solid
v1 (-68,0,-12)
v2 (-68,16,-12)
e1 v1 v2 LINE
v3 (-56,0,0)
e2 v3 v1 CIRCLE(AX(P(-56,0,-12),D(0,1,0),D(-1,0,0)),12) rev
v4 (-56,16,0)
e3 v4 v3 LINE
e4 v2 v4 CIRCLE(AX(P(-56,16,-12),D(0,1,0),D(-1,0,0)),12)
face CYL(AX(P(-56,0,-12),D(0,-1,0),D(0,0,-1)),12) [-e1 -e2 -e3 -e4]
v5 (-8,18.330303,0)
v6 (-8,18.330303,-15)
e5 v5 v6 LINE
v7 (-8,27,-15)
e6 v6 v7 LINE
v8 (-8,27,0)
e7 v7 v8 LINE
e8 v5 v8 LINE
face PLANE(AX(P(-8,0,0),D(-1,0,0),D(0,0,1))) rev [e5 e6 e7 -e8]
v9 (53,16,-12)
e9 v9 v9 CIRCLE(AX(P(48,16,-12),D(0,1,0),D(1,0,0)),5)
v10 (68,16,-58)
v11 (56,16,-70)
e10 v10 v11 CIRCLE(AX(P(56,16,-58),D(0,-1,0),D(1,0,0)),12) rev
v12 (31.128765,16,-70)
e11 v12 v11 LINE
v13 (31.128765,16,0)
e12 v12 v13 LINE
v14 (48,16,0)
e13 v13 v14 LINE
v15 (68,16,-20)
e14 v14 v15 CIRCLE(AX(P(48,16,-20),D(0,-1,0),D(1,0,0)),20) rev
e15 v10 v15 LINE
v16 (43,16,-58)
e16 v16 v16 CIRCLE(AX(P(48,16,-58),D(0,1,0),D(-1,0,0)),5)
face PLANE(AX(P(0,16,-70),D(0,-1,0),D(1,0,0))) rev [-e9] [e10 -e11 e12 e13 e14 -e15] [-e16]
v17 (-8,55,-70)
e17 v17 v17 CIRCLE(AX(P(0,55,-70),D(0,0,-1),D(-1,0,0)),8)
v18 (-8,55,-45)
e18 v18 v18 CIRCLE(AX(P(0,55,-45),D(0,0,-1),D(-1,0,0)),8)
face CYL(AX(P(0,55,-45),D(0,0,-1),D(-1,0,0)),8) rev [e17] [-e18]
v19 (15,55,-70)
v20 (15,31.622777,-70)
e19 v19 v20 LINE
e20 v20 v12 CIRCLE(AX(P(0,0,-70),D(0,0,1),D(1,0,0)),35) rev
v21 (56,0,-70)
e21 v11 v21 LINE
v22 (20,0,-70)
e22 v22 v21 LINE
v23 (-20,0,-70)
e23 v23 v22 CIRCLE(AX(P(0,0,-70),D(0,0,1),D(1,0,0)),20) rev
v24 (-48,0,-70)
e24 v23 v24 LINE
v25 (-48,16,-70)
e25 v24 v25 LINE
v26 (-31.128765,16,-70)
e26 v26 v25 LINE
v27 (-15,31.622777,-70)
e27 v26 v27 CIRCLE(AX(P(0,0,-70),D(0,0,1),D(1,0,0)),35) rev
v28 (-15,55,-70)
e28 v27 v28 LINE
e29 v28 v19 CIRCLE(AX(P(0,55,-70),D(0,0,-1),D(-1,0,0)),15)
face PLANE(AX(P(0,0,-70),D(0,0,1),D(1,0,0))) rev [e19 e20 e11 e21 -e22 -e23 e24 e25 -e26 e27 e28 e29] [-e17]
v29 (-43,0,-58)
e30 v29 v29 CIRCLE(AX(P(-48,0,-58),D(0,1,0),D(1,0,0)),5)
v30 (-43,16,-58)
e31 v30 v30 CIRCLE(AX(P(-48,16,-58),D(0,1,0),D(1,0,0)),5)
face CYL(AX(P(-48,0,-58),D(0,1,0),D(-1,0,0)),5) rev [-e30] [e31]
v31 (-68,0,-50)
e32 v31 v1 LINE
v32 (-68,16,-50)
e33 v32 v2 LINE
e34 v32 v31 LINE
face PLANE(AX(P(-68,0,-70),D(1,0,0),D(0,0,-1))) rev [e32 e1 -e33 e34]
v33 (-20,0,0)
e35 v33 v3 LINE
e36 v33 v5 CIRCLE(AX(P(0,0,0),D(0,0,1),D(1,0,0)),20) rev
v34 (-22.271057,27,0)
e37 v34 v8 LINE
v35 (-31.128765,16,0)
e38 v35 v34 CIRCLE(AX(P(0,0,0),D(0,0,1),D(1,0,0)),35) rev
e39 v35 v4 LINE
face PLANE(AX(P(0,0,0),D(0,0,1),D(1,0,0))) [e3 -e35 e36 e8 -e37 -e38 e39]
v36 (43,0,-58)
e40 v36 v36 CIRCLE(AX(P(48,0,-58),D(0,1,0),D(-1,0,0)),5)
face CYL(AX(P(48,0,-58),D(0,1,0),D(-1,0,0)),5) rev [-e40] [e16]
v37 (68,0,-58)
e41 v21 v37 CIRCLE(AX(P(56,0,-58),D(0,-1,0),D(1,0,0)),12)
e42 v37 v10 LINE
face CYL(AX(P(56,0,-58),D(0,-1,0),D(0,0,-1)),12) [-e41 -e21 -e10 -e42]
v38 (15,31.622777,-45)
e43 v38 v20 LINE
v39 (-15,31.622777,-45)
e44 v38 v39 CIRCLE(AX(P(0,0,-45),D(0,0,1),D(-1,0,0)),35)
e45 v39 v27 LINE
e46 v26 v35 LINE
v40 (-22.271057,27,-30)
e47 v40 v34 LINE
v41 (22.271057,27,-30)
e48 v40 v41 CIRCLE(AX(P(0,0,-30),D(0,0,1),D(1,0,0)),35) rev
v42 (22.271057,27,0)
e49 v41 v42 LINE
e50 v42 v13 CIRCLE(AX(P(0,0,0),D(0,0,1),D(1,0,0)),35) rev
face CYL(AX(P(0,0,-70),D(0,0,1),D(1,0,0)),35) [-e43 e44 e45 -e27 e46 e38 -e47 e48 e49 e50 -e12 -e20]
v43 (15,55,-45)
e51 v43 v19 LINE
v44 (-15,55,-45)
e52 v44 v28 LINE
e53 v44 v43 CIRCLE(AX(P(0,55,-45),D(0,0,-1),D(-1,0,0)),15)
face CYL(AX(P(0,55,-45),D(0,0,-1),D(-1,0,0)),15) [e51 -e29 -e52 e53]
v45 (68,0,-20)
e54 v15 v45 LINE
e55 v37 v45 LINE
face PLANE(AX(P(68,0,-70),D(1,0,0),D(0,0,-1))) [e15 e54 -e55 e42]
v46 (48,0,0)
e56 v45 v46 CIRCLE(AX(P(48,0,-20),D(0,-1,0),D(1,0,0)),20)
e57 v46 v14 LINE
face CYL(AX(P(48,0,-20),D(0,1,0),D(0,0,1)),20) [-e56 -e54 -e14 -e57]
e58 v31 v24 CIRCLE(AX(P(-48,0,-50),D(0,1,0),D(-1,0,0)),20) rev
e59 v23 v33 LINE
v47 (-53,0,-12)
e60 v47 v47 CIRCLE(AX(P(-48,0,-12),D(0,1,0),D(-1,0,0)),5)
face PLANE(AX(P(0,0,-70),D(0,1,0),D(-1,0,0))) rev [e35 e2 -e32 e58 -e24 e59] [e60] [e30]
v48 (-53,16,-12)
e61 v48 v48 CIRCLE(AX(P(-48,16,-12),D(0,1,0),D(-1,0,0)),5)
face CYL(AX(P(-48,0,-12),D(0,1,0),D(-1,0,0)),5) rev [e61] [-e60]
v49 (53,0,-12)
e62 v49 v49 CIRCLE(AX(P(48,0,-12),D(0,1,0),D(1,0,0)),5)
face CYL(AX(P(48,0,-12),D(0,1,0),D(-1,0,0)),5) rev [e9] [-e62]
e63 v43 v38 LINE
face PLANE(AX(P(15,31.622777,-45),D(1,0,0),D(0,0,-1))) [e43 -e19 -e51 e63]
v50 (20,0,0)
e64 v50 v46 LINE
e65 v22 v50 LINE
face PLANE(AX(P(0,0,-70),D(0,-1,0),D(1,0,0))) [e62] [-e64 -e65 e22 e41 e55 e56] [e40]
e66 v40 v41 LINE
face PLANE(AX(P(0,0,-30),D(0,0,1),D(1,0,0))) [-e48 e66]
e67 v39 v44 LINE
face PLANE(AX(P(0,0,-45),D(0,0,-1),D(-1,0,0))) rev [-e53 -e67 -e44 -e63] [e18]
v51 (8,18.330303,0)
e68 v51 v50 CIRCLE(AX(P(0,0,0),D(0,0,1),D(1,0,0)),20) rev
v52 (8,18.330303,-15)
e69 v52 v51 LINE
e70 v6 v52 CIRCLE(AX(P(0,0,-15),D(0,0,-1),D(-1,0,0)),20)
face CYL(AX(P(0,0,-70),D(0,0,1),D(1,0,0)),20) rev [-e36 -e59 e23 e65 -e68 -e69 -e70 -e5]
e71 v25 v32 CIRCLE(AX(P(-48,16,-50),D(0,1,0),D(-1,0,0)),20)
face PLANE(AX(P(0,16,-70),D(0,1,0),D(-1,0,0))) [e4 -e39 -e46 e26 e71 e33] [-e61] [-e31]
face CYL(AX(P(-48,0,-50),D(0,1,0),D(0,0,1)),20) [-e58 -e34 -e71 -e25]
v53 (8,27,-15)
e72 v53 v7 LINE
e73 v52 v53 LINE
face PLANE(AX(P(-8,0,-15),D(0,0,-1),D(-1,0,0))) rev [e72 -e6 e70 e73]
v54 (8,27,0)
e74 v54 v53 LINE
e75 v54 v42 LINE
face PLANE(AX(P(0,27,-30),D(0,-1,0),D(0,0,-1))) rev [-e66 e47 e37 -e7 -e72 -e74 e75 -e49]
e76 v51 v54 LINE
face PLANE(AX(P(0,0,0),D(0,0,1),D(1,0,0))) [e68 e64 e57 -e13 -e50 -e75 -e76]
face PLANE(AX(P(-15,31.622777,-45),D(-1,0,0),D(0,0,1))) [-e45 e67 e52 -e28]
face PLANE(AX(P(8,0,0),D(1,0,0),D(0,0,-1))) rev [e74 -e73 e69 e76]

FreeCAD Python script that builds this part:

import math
import FreeCAD as App
import Part
import Sketcher


def edges_at(feature, points):
    """Names of the edges that pass closest to the given points."""
    edges = feature.Shape.Edges
    near = lambda p: min(range(len(edges)), key=lambda i: edges[i].distToShape(Part.Vertex(*p))[0])
    return sorted({f"Edge{near(p) + 1}" for p in points})

doc = App.newDocument("Part")
body = doc.addObject("PartDesign::Body", "Body")

# Sketch on XY plane
sketch1 = body.newObject("Sketcher::SketchObject", "Sketch")
sketch1.AttachmentSupport = (doc.getObject("XY_Plane"), [""])
sketch1.MapMode = "FlatFace"
sketch1.addGeometry(Part.LineSegment(App.Vector(-68, 16, 0), App.Vector(-68, 0, 0)), False)
sketch1.addGeometry(Part.LineSegment(App.Vector(-68, 0, 0), App.Vector(-20, 0, 0)), False)
sketch1.addGeometry(Part.ArcOfCircle(Part.Circle(App.Vector(0, 0, 0), App.Vector(0, 0, 1), 20), math.radians(90), math.radians(180)), False)
sketch1.addGeometry(Part.ArcOfCircle(Part.Circle(App.Vector(0, 0, 0), App.Vector(0, 0, 1), 20), math.radians(0), math.radians(90)), False)
sketch1.addGeometry(Part.LineSegment(App.Vector(20, 0, 0), App.Vector(68, 0, 0)), False)
sketch1.addGeometry(Part.LineSegment(App.Vector(68, 0, 0), App.Vector(68, 16, 0)), False)
sketch1.addGeometry(Part.LineSegment(App.Vector(68, 16, 0), App.Vector(31.128765, 16, 0)), False)
sketch1.addGeometry(Part.ArcOfCircle(Part.Circle(App.Vector(0, 0, 0), App.Vector(0, 0, 1), 35), math.radians(27.202894), math.radians(50.482347)), False)
sketch1.addGeometry(Part.ArcOfCircle(Part.Circle(App.Vector(0, 0, 0), App.Vector(0, 0, 1), 35), math.radians(50.482347), math.radians(90)), False)
sketch1.addGeometry(Part.ArcOfCircle(Part.Circle(App.Vector(0, 0, 0), App.Vector(0, 0, 1), 35), math.radians(90), math.radians(129.517653)), False)
sketch1.addGeometry(Part.ArcOfCircle(Part.Circle(App.Vector(0, 0, 0), App.Vector(0, 0, 1), 35), math.radians(129.517653), math.radians(152.797106)), False)
sketch1.addGeometry(Part.LineSegment(App.Vector(-31.128765, 16, 0), App.Vector(-68, 16, 0)), False)
sketch1.addConstraint(Sketcher.Constraint("Coincident", 0, 2, 1, 1))
sketch1.addConstraint(Sketcher.Constraint("Coincident", 1, 2, 2, 2))
sketch1.addConstraint(Sketcher.Constraint("Tangent", 2, 1, 3, 2))
sketch1.addConstraint(Sketcher.Constraint("Coincident", 3, 1, 4, 1))
sketch1.addConstraint(Sketcher.Constraint("Coincident", 4, 2, 5, 1))
sketch1.addConstraint(Sketcher.Constraint("Coincident", 5, 2, 6, 1))
sketch1.addConstraint(Sketcher.Constraint("Coincident", 6, 2, 7, 1))
sketch1.addConstraint(Sketcher.Constraint("Tangent", 7, 2, 8, 1))
sketch1.addConstraint(Sketcher.Constraint("Tangent", 8, 2, 9, 1))
sketch1.addConstraint(Sketcher.Constraint("Tangent", 9, 2, 10, 1))
sketch1.addConstraint(Sketcher.Constraint("Coincident", 10, 2, 11, 1))
sketch1.addConstraint(Sketcher.Constraint("Coincident", 11, 2, 0, 1))
sketch1.addConstraint(Sketcher.Constraint("Vertical", 0))
sketch1.addConstraint(Sketcher.Constraint("Horizontal", 1))
sketch1.addConstraint(Sketcher.Constraint("Horizontal", 4))
sketch1.addConstraint(Sketcher.Constraint("Vertical", 5))
sketch1.addConstraint(Sketcher.Constraint("Horizontal", 6))
sketch1.addConstraint(Sketcher.Constraint("Horizontal", 11))
sketch1.addConstraint(Sketcher.Constraint("Coincident", 2, 3, -1, 1))
sketch1.addConstraint(Sketcher.Constraint("Coincident", 7, 3, -1, 1))
sketch1.addConstraint(Sketcher.Constraint("Coincident", 9, 3, -1, 1))
sketch1.addConstraint(Sketcher.Constraint("Equal", 2, 3))
sketch1.addConstraint(Sketcher.Constraint("Equal", 9, 10))
sketch1.addConstraint(Sketcher.Constraint("Symmetric", 0, 2, 4, 2, -1, 1))
sketch1.addConstraint(Sketcher.Constraint("PointOnObject", 0, 2, -1))
sketch1.addConstraint(Sketcher.Constraint("PointOnObject", 2, 1, -2))
sketch1.addConstraint(Sketcher.Constraint("PointOnObject", 8, 2, -2))
sketch1.addConstraint(Sketcher.Constraint("Horizontal", 7, 2, 9, 2))
sketch1.addConstraint(Sketcher.Constraint("Horizontal", 6, 2, 10, 2))
sketch1.addConstraint(Sketcher.Constraint("Radius", 2, 20.0))
sketch1.addConstraint(Sketcher.Constraint("Radius", 7, 35.0))
sketch1.addConstraint(Sketcher.Constraint("DistanceX", 1, 1, 1, 2, 48.0))
sketch1.addConstraint(Sketcher.Constraint("DistanceY", 0, 2, 0, 1, 16.0))
sketch1.addConstraint(Sketcher.Constraint("DistanceY", -1, 1, 7, 2, 27.0))
pad1 = body.newObject("PartDesign::Pad", "Pad")
pad1.Profile = sketch1
pad1.Length = 70
pad1.Reversed = True

# Sketch on XY plane
sketch2 = body.newObject("Sketcher::SketchObject", "Sketch001")
sketch2.AttachmentSupport = (doc.getObject("XY_Plane"), [""])
sketch2.MapMode = "FlatFace"
sketch2.addGeometry(Part.LineSegment(App.Vector(-22.271057, 27, 0), App.Vector(22.271057, 27, 0)), False)
sketch2.addGeometry(Part.ArcOfCircle(Part.Circle(App.Vector(0, 0, 0), App.Vector(0, 0, 1), 35), math.radians(50.482347), math.radians(90)), False)
sketch2.addGeometry(Part.ArcOfCircle(Part.Circle(App.Vector(0, 0, 0), App.Vector(0, 0, 1), 35), math.radians(90), math.radians(129.517653)), False)
sketch2.addConstraint(Sketcher.Constraint("Coincident", 0, 2, 1, 1))
sketch2.addConstraint(Sketcher.Constraint("Tangent", 1, 2, 2, 1))
sketch2.addConstraint(Sketcher.Constraint("Coincident", 2, 2, 0, 1))
sketch2.addConstraint(Sketcher.Constraint("Horizontal", 0))
sketch2.addConstraint(Sketcher.Constraint("Coincident", 1, 3, -1, 1))
sketch2.addConstraint(Sketcher.Constraint("Equal", 1, 2))
sketch2.addConstraint(Sketcher.Constraint("PointOnObject", 1, 2, -2))
sketch2.addConstraint(Sketcher.Constraint("Radius", 1, 35.0))
sketch2.addConstraint(Sketcher.Constraint("DistanceY", -1, 1, 0, 2, 27.0))
pocket1 = body.newObject("PartDesign::Pocket", "Pocket")
pocket1.Profile = sketch2
pocket1.Length = 30

# Sketch on XZ plane
sketch3 = body.newObject("Sketcher::SketchObject", "Sketch002")
sketch3.AttachmentSupport = (doc.getObject("XZ_Plane"), [""])
sketch3.MapMode = "FlatFace"
sketch3.AttachmentOffset = App.Placement(App.Vector(0, 0, -27), App.Rotation())
sketch3.addGeometry(Part.LineSegment(App.Vector(-8, -15, 0), App.Vector(-8, 0, 0)), False)
sketch3.addGeometry(Part.LineSegment(App.Vector(-8, 0, 0), App.Vector(8, 0, 0)), False)
sketch3.addGeometry(Part.LineSegment(App.Vector(8, 0, 0), App.Vector(8, -15, 0)), False)
sketch3.addGeometry(Part.LineSegment(App.Vector(8, -15, 0), App.Vector(-8, -15, 0)), False)
sketch3.addConstraint(Sketcher.Constraint("Coincident", 0, 2, 1, 1))
sketch3.addConstraint(Sketcher.Constraint("Coincident", 1, 2, 2, 1))
sketch3.addConstraint(Sketcher.Constraint("Coincident", 2, 2, 3, 1))
sketch3.addConstraint(Sketcher.Constraint("Coincident", 3, 2, 0, 1))
sketch3.addConstraint(Sketcher.Constraint("Vertical", 0))
sketch3.addConstraint(Sketcher.Constraint("Horizontal", 1))
sketch3.addConstraint(Sketcher.Constraint("Vertical", 2))
sketch3.addConstraint(Sketcher.Constraint("Horizontal", 3))
sketch3.addConstraint(Sketcher.Constraint("Symmetric", 0, 2, 1, 2, -1, 1))
sketch3.addConstraint(Sketcher.Constraint("DistanceX", 1, 1, 1, 2, 16.0))
sketch3.addConstraint(Sketcher.Constraint("DistanceY", 0, 1, 0, 2, 15.0))
pocket2 = body.newObject("PartDesign::Pocket", "Pocket001")
pocket2.Profile = sketch3
pocket2.Type = "ThroughAll"
pocket2.Reversed = True

# Sketch on XY plane
sketch4 = body.newObject("Sketcher::SketchObject", "Sketch003")
sketch4.AttachmentSupport = (doc.getObject("XY_Plane"), [""])
sketch4.MapMode = "FlatFace"
sketch4.AttachmentOffset = App.Placement(App.Vector(0, 0, -45), App.Rotation())
sketch4.addGeometry(Part.LineSegment(App.Vector(15, 55, 0), App.Vector(15, 31.622777, 0)), False)
sketch4.addGeometry(Part.ArcOfCircle(Part.Circle(App.Vector(0, 0, 0), App.Vector(0, 0, 1), 35), math.radians(64.623066), math.radians(115.376934)), False)
sketch4.addGeometry(Part.LineSegment(App.Vector(-15, 31.622777, 0), App.Vector(-15, 55, 0)), False)
sketch4.addGeometry(Part.ArcOfCircle(Part.Circle(App.Vector(0, 55, 0), App.Vector(0, 0, 1), 15), math.radians(0), math.radians(180)), False)
sketch4.addGeometry(Part.Circle(App.Vector(0, 55, 0), App.Vector(0, 0, 1), 8), False)
sketch4.addConstraint(Sketcher.Constraint("Coincident", 0, 2, 1, 1))
sketch4.addConstraint(Sketcher.Constraint("Coincident", 1, 2, 2, 1))
sketch4.addConstraint(Sketcher.Constraint("Tangent", 2, 2, 3, 2))
sketch4.addConstraint(Sketcher.Constraint("Tangent", 3, 1, 0, 1))
sketch4.addConstraint(Sketcher.Constraint("Vertical", 0))
sketch4.addConstraint(Sketcher.Constraint("Vertical", 2))
sketch4.addConstraint(Sketcher.Constraint("Coincident", 1, 3, -1, 1))
sketch4.addConstraint(Sketcher.Constraint("Coincident", 4, 3, 3, 3))
sketch4.addConstraint(Sketcher.Constraint("PointOnObject", 3, 3, -2))
sketch4.addConstraint(Sketcher.Constraint("Diameter", 4, 16.0))
sketch4.addConstraint(Sketcher.Constraint("Radius", 1, 35.0))
sketch4.addConstraint(Sketcher.Constraint("Radius", 3, 15.0))
sketch4.addConstraint(Sketcher.Constraint("DistanceY", -1, 1, 3, 3, 55.0))
pad2 = body.newObject("PartDesign::Pad", "Pad001")
pad2.Profile = sketch4
pad2.Length = 25
pad2.Reversed = True

# Sketch on XZ plane
sketch5 = body.newObject("Sketcher::SketchObject", "Sketch004")
sketch5.AttachmentSupport = (doc.getObject("XZ_Plane"), [""])
sketch5.MapMode = "FlatFace"
sketch5.AttachmentOffset = App.Placement(App.Vector(0, 0, -16), App.Rotation())
sketch5.addGeometry(Part.Circle(App.Vector(-48, -12, 0), App.Vector(0, 0, 1), 5), False)
sketch5.addGeometry(Part.Circle(App.Vector(-48, -58, 0), App.Vector(0, 0, 1), 5), False)
sketch5.addGeometry(Part.Circle(App.Vector(48, -58, 0), App.Vector(0, 0, 1), 5), False)
sketch5.addGeometry(Part.Circle(App.Vector(48, -12, 0), App.Vector(0, 0, 1), 5), False)
sketch5.addConstraint(Sketcher.Constraint("Equal", 0, 1))
sketch5.addConstraint(Sketcher.Constraint("Equal", 1, 2))
sketch5.addConstraint(Sketcher.Constraint("Equal", 2, 3))
sketch5.addConstraint(Sketcher.Constraint("Symmetric", 1, 3, 2, 3, -2))
sketch5.addConstraint(Sketcher.Constraint("Symmetric", 0, 3, 3, 3, -2))
sketch5.addConstraint(Sketcher.Constraint("Vertical", 0, 3, 1, 3))
sketch5.addConstraint(Sketcher.Constraint("Diameter", 0, 10.0))
sketch5.addConstraint(Sketcher.Constraint("DistanceX", 0, 3, -1, 1, 48.0))
sketch5.addConstraint(Sketcher.Constraint("DistanceY", 0, 3, -1, 1, 12.0))
sketch5.addConstraint(Sketcher.Constraint("DistanceY", 1, 3, -1, 1, 58.0))
pocket3 = body.newObject("PartDesign::Pocket", "Pocket002")
pocket3.Profile = sketch5
pocket3.Type = "ThroughAll"
pocket3.Reversed = True
doc.recompute()

fillet = body.newObject("PartDesign::Fillet", "Fillet")
fillet.Base = (pocket3, edges_at(pocket3, [(68, 8, 0), (-68, 8, -70)]))
fillet.Radius = 20
doc.recompute()

fillet2 = body.newObject("PartDesign::Fillet", "Fillet001")
fillet2.Base = (fillet, edges_at(fillet, [(-68, 8, 0), (68, 8, -70)]))
fillet2.Radius = 12

doc.recompute()
